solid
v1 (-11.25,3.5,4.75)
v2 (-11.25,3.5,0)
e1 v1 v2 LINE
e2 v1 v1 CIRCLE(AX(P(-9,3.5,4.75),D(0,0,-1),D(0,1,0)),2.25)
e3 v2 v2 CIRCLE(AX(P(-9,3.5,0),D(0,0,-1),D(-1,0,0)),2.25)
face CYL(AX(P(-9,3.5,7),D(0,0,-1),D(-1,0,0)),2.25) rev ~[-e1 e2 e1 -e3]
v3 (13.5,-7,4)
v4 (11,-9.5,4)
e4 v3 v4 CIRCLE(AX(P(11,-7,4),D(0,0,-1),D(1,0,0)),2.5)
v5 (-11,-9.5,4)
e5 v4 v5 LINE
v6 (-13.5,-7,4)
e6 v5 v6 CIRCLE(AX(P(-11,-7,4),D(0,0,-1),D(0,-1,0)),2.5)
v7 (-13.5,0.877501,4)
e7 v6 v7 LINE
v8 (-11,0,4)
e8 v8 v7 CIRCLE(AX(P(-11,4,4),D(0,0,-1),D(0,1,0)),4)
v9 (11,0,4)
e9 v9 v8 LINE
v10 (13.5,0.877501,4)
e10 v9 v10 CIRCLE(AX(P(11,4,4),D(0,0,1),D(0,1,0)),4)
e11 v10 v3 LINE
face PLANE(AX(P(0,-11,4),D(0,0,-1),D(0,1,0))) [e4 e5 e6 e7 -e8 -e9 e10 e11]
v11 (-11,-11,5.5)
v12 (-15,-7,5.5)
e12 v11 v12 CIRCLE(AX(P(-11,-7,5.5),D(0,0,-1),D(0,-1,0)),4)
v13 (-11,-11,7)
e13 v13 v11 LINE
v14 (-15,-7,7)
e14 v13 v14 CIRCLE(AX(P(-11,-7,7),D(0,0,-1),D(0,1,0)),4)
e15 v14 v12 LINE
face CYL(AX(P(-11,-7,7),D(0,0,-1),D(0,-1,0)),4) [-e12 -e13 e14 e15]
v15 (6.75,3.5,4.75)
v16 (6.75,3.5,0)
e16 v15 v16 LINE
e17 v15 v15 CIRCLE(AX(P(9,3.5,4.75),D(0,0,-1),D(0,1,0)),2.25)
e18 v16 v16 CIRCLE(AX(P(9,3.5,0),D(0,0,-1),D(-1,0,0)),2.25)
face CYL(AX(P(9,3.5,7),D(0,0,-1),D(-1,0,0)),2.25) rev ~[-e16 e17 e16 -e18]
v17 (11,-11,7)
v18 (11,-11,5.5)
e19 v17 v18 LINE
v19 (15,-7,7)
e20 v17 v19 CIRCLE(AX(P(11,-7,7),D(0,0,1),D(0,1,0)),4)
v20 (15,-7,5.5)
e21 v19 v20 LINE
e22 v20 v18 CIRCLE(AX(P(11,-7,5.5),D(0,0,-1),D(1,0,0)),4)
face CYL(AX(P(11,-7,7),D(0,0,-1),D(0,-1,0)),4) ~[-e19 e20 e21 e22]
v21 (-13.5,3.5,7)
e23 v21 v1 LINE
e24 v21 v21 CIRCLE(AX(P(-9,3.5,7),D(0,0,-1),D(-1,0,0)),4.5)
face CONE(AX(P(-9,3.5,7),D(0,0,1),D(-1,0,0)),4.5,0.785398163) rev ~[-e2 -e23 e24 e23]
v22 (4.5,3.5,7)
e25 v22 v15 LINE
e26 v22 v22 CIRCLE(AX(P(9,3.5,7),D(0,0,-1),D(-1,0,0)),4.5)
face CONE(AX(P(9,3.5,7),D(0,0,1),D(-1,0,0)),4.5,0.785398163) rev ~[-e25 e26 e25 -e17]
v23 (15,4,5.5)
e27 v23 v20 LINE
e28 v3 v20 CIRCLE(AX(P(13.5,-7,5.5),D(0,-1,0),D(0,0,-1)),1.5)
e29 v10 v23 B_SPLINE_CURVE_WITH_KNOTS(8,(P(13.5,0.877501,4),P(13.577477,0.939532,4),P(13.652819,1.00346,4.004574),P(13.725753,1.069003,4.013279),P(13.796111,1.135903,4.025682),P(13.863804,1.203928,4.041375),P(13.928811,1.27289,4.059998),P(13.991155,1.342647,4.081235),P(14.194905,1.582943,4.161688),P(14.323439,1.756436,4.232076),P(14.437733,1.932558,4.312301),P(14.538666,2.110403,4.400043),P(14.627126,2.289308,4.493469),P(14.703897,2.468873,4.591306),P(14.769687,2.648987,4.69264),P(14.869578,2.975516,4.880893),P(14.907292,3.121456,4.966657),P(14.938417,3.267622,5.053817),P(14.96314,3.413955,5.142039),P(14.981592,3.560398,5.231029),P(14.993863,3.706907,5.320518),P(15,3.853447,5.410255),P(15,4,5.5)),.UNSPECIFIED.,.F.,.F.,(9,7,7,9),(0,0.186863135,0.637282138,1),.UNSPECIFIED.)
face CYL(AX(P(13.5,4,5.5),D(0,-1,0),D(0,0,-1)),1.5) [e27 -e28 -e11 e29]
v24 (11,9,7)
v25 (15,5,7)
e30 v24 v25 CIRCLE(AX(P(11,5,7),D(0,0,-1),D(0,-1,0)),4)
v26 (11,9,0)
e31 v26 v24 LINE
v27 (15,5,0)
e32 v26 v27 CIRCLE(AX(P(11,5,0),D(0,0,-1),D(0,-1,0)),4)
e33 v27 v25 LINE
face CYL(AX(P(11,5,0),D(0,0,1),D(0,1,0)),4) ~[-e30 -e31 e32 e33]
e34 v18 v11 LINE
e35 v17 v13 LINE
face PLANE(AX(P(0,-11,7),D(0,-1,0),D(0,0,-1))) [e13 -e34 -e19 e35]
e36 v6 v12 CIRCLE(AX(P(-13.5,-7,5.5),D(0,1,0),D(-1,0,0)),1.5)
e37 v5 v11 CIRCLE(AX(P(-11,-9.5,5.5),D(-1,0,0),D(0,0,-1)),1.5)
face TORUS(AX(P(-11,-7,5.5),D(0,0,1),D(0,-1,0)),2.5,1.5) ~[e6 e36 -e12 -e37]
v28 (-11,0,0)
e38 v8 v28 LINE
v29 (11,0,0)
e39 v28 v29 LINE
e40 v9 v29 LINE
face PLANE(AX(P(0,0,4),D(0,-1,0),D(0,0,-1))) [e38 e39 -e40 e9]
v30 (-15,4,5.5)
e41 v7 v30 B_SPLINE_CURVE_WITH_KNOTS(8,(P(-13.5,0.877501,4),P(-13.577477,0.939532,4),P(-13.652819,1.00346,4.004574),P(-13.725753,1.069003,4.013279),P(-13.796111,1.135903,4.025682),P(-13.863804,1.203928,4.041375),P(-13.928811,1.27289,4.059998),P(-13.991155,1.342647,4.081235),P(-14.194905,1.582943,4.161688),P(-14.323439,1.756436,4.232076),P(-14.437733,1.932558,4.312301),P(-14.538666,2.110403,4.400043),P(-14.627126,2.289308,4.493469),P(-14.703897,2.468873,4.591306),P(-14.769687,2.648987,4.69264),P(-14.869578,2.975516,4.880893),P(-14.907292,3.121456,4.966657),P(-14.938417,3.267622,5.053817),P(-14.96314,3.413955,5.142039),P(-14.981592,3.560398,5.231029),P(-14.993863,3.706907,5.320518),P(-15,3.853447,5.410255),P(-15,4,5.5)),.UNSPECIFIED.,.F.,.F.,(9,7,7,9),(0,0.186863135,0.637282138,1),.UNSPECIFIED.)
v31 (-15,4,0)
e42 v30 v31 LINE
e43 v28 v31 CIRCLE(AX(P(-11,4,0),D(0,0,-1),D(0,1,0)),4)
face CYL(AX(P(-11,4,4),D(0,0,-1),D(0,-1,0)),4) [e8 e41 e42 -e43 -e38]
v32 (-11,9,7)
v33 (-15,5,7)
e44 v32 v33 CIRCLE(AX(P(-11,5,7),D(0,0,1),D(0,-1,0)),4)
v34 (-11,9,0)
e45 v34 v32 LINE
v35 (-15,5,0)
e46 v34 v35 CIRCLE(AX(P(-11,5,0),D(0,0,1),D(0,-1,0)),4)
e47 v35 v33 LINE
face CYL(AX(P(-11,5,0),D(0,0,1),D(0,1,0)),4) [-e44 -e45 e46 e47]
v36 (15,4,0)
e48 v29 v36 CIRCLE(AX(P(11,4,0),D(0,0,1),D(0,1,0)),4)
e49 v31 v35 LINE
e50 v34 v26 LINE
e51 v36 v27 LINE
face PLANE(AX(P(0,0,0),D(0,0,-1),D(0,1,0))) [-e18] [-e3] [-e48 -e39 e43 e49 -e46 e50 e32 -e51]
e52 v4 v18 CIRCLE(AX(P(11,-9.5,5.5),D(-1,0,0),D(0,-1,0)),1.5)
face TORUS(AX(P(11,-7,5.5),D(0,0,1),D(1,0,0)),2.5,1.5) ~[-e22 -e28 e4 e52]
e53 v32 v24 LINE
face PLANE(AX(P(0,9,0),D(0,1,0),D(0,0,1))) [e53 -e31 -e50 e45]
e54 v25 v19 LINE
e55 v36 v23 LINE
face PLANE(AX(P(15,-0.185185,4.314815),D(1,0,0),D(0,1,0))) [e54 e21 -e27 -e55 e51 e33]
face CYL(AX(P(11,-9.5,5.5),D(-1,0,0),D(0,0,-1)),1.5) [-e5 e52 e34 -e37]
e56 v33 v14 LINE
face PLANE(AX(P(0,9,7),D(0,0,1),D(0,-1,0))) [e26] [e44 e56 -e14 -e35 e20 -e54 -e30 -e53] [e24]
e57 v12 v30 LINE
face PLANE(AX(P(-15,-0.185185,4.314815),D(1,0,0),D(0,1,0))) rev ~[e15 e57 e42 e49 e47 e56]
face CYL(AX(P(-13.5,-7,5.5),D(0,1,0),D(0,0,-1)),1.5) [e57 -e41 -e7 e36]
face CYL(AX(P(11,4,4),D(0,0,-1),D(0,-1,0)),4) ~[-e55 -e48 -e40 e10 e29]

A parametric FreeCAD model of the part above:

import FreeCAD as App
import Part
import Sketcher
Q = App.Units.Quantity


def edges_at(feature, points):
    """Names of the edges that pass closest to the given points."""
    edges = feature.Shape.Edges
    near = lambda p: min(range(len(edges)), key=lambda i: edges[i].distToShape(Part.Vertex(*p))[0])
    return sorted({f"Edge{near(p) + 1}" for p in points})


def add_polygon(sketch, points):
    """Adds a closed chain of lines whose ends are joined by coincident constraints."""
    first, n = sketch.GeometryCount, len(points)
    for a, b in zip(points, points[1:] + points[:1]):
        sketch.addGeometry(Part.LineSegment(App.Vector(*a, 0), App.Vector(*b, 0)), False)
    for i in range(n):
        sketch.addConstraint(Sketcher.Constraint("Coincident", first + i, 2, first + (i + 1) % n, 1))

doc = App.newDocument("Part")
body = doc.addObject("PartDesign::Body", "Body")

# Sketch on YZ plane
sketch1 = doc.addObject("Sketcher::SketchObject", "Sketch")
body.addObject(sketch1)
sketch1.AttachmentSupport = (doc.YZ_Plane, [""])
sketch1.MapMode = "FlatFace"
add_polygon(sketch1, [(0, 4), (0, 0), (9, 0), (9, 7), (-11, 7), (-11, 4)])  # lines 0-5
sketch1.addConstraint([
    Sketcher.Constraint("Vertical", 0),
    Sketcher.Constraint("Horizontal", 1),
    Sketcher.Constraint("Vertical", 2),
    Sketcher.Constraint("Horizontal", 3),
    Sketcher.Constraint("Vertical", 4),
    Sketcher.Constraint("Horizontal", 5),
    Sketcher.Constraint("Coincident", 0, 2, -1, 1),
    Sketcher.Constraint("DistanceX", 1, 1, 1, 2, Q("9 mm")),
    Sketcher.Constraint("DistanceX", 3, 2, 3, 1, Q("20 mm")),
    Sketcher.Constraint("DistanceY", 0, 2, 0, 1, Q("4 mm")),
    Sketcher.Constraint("DistanceY", 2, 1, 2, 2, Q("7 mm")),
])
pad1 = doc.addObject("PartDesign::Pad", "Pad")
body.addObject(pad1)
pad1.Profile = sketch1
pad1.Length = 30
pad1.Midplane = True

# Sketch on XY plane
sketch2 = doc.addObject("Sketcher::SketchObject", "Sketch001")
body.addObject(sketch2)
sketch2.AttachmentSupport = (doc.XY_Plane, [""])
sketch2.MapMode = "FlatFace"
sketch2.AttachmentOffset = App.Placement(App.Vector(0, 0, 7), App.Rotation())
sketch2.addGeometry([
    Part.Circle(App.Vector(-9, 3.5, 0), App.Vector(0, 0, 1), 2.2),
    Part.Circle(App.Vector(9, 3.5, 0), App.Vector(0, 0, 1), 2.2),
], False)
sketch2.addConstraint([
    Sketcher.Constraint("Equal", 0, 1),
    Sketcher.Constraint("Symmetric", 0, 3, 1, 3, -2),
    Sketcher.Constraint("Diameter", 0, Q("4.5 mm")),
    Sketcher.Constraint("DistanceX", 0, 3, -1, 1, Q("9 mm")),
    Sketcher.Constraint("DistanceY", -1, 1, 0, 3, Q("3.5 mm")),
])
doc.recompute()
hole = doc.addObject("PartDesign::Hole", "Hole")
body.addObject(hole)
hole.Profile = sketch2
hole.ThreadType = "None"
hole.Diameter = 4.5
hole.DepthType = "ThroughAll"
hole.HoleCutType = "Countersink"
hole.HoleCutDiameter = 9
hole.HoleCutCountersinkAngle = 90
doc.recompute()

fillet = doc.addObject("PartDesign::Fillet", "Fillet")
body.addObject(fillet)
fillet.Base = (hole, edges_at(hole, [
    (15, -11, 5.5),
    (-15, -11, 5.5),
    (15, 0, 2),
    (-15, 0, 2),
    (-15, 9, 3.5),
    (15, 9, 3.5),
]))
fillet.Radius = 4
doc.recompute()

fillet2 = doc.addObject("PartDesign::Fillet", "Fillet001")
body.addObject(fillet2)
fillet2.Base = (fillet, edges_at(fillet, [(-15, -1.5, 4)]))
fillet2.Radius = 1.5

doc.recompute()
